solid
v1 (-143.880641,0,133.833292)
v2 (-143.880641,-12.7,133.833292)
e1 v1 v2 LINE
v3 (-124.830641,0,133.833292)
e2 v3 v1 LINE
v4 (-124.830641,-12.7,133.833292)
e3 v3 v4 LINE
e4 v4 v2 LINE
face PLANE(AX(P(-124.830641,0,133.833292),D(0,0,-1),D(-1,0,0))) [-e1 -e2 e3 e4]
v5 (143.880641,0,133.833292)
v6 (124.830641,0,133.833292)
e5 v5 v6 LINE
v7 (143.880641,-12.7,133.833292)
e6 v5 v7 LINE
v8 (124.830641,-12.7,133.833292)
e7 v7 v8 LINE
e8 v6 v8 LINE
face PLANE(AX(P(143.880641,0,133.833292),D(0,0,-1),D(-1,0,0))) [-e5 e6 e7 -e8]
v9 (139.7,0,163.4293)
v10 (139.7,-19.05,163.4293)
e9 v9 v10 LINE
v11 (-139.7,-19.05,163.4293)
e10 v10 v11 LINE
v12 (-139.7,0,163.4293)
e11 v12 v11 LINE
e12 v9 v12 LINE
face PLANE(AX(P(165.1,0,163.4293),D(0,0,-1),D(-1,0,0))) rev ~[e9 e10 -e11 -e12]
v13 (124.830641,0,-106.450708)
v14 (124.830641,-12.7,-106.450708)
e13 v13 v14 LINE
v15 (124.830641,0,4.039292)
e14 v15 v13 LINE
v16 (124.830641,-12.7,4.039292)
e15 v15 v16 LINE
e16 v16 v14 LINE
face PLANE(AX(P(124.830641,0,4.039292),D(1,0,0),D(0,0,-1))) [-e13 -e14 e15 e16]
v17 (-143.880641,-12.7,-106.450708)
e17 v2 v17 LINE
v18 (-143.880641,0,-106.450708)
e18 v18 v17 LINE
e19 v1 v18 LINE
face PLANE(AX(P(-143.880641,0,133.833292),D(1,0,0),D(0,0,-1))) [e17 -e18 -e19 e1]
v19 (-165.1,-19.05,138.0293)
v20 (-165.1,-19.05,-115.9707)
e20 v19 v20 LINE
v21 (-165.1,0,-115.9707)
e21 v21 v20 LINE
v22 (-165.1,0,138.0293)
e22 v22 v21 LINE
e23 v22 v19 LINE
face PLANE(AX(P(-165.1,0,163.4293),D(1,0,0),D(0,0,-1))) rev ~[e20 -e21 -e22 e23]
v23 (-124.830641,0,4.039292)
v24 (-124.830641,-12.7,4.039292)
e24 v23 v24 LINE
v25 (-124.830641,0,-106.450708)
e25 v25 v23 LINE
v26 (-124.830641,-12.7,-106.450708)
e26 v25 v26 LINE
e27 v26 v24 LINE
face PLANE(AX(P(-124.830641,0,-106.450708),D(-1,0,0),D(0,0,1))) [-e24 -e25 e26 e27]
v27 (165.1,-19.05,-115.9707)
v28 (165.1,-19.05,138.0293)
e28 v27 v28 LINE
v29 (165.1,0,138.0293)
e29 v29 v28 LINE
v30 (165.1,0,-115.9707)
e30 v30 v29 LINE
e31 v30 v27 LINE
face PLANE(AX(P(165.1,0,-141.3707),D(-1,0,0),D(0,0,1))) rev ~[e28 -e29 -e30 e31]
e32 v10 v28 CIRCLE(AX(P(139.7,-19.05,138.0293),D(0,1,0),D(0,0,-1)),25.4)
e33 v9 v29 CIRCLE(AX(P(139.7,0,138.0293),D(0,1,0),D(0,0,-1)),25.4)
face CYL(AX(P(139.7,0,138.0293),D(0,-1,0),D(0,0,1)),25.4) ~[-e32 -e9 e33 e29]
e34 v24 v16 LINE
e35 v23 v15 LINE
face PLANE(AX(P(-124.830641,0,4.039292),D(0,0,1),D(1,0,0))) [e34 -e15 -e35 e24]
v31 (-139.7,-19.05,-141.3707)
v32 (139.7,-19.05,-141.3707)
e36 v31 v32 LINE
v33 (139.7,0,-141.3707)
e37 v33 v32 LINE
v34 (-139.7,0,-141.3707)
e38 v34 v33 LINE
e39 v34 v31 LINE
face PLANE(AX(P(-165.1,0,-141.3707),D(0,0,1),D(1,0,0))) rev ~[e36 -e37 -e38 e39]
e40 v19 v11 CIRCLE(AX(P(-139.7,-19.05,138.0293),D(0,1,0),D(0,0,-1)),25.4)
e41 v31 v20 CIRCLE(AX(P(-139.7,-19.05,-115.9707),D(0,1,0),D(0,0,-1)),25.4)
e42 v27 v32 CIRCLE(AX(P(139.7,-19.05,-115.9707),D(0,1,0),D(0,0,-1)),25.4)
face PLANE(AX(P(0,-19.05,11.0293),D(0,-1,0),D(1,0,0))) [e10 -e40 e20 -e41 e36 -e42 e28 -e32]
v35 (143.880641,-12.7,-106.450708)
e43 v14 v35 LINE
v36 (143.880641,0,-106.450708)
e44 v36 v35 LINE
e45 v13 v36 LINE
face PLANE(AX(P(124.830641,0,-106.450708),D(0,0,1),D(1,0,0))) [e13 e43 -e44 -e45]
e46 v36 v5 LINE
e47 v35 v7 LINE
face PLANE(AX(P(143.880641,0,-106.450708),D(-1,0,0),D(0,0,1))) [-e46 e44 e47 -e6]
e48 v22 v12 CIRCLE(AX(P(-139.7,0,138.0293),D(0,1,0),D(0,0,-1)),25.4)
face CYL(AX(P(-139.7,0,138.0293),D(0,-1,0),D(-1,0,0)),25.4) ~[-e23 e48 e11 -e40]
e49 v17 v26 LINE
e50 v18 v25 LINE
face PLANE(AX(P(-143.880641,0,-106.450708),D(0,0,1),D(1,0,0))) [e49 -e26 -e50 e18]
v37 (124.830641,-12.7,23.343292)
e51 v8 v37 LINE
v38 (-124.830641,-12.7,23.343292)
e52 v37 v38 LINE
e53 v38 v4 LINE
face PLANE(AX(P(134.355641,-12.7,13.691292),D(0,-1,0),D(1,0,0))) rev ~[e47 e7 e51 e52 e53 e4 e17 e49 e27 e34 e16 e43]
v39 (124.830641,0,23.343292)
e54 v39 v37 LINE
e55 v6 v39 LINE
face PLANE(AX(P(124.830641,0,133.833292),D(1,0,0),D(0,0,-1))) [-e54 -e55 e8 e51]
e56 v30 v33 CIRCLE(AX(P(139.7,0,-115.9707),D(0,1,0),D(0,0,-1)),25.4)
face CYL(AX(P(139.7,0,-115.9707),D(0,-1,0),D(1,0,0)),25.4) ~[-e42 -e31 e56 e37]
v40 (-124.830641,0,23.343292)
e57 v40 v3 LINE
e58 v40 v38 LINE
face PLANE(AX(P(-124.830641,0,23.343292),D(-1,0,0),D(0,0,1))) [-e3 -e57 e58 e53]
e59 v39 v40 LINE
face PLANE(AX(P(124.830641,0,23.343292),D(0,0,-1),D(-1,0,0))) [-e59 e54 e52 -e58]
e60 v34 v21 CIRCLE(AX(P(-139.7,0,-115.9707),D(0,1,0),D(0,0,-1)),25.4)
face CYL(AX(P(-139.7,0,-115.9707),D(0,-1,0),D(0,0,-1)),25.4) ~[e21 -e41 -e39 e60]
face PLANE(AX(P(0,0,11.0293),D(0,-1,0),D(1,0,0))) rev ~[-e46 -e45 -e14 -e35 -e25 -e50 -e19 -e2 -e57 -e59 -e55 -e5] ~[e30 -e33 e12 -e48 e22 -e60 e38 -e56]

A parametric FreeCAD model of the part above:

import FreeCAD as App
import Part
import Sketcher
from FreeCAD import Vector
Q = App.Units.Quantity


def edges_at(feature, points):
    """Names of the edges that pass closest to the given points."""
    edges = feature.Shape.Edges
    near = lambda p: min(range(len(edges)), key=lambda i: edges[i].distToShape(Part.Vertex(*p))[0])
    return sorted({f"Edge{near(p) + 1}" for p in points})


def add_polygon(sketch, points):
    """Adds a closed chain of lines whose ends are joined by coincident constraints."""
    first, n = sketch.GeometryCount, len(points)
    for a, b in zip(points, points[1:] + points[:1]):
        sketch.addGeometry(Part.LineSegment(App.Vector(*a, 0), App.Vector(*b, 0)), False)
    for i in range(n):
        sketch.addConstraint(Sketcher.Constraint("Coincident", first + i, 2, first + (i + 1) % n, 1))

doc = App.newDocument("Part")
body = doc.addObject("PartDesign::Body", "Body")

sketch1 = body.newObject("Sketcher::SketchObject", "Sketch")
sketch1.AttachmentSupport = (doc.getObject("XZ_Plane"), [""])
sketch1.MapMode = "FlatFace"
add_polygon(sketch1, [(165.1, 163.4293), (-165.1, 163.4293), (-165.1, -141.3707), (165.1, -141.3707)])
sketch1.addConstraint([
    Sketcher.Constraint("Horizontal", 0),
    Sketcher.Constraint("Vertical", 1),
    Sketcher.Constraint("Horizontal", 2),
    Sketcher.Constraint("Vertical", 3),
    Sketcher.Constraint("DistanceX", 0, 2, 0, 1, Q("13 in")),
    Sketcher.Constraint("DistanceY", 1, 2, 1, 1, Q("12 in")),
    Sketcher.Constraint("DistanceX", 0, 2, -1, 1, Q("6.5 in")),
    Sketcher.Constraint("DistanceY", -1, 1, 0, 2, Q("163.4293 mm")),
])
pad1 = body.newObject("PartDesign::Pad", "Pad")
pad1.Profile = sketch1
pad1.Length = Q("0.75 in")

sketch2 = body.newObject("Sketcher::SketchObject", "Sketch001")
sketch2.AttachmentSupport = (doc.getObject("XZ_Plane"), [""])
sketch2.MapMode = "FlatFace"
add_polygon(sketch2, [(143.880641, -106.450708), (143.880641, 133.833292), (124.830641, 133.833292), (124.830641, 23.343292), (-124.830641, 23.343292), (-124.830641, 133.833292), (-143.880641, 133.833292), (-143.880641, -106.450708), (-124.830641, -106.450708), (-124.830641, 4.039292), (124.830641, 4.039292), (124.830641, -106.450708)])
sketch2.addConstraint([
    Sketcher.Constraint("Vertical", 0),
    Sketcher.Constraint("Horizontal", 1),
    Sketcher.Constraint("Vertical", 2),
    Sketcher.Constraint("Horizontal", 3),
    Sketcher.Constraint("Vertical", 4),
    Sketcher.Constraint("Horizontal", 5),
    Sketcher.Constraint("Vertical", 6),
    Sketcher.Constraint("Horizontal", 7),
    Sketcher.Constraint("Vertical", 8),
    Sketcher.Constraint("Horizontal", 9),
    Sketcher.Constraint("Vertical", 10),
    Sketcher.Constraint("Horizontal", 11),
    Sketcher.Constraint("Symmetric", 1, 2, 4, 2, -2),
    Sketcher.Constraint("Symmetric", 7, 2, 10, 2, -2),
    Sketcher.Constraint("Vertical", 4, 2, 7, 2),
    Sketcher.Constraint("Equal", 1, 5),
    Sketcher.Constraint("Equal", 4, 8),
    Sketcher.Constraint("DistanceX", 1, 2, 1, 1, Q("0.75 in")),
    Sketcher.Constraint("DistanceY", 0, 1, 0, 2, Q("9.46 in")),
    Sketcher.Constraint("DistanceY", 2, 2, 2, 1, Q("4.35 in")),
    Sketcher.Constraint("DistanceX", 3, 2, 3, 1, Q("249.661282 mm")),
    Sketcher.Constraint("DistanceY", -1, 1, 0, 2, Q("133.833292 mm")),
])
pocket1 = body.newObject("PartDesign::Pocket", "Pocket")
pocket1.Profile = sketch2
pocket1.Length = Q("0.5 in")
pocket1.Reversed = True
doc.recompute()

fillet = body.newObject("PartDesign::Fillet", "Fillet")
fillet.Base = (pocket1, edges_at(pocket1, [(165.1, -9.525, 163.429)]))
fillet.Radius = Q("1 in")
doc.recompute()

fillet2 = body.newObject("PartDesign::Fillet", "Fillet001")
fillet2.Base = (fillet, edges_at(fillet, [(165.1, -9.525, -141.371)]))
fillet2.Radius = Q("1 in")
doc.recompute()

fillet3 = body.newObject("PartDesign::Fillet", "Fillet002")
fillet3.Base = (fillet2, edges_at(fillet2, [(-165.1, -9.525, -141.371)]))
fillet3.Radius = Q("1 in")
doc.recompute()

fillet4 = body.newObject("PartDesign::Fillet", "Fillet003")
fillet4.Base = (fillet3, edges_at(fillet3, [(-165.1, -9.525, 163.429)]))
fillet4.Radius = Q("1 in")

doc.recompute()
